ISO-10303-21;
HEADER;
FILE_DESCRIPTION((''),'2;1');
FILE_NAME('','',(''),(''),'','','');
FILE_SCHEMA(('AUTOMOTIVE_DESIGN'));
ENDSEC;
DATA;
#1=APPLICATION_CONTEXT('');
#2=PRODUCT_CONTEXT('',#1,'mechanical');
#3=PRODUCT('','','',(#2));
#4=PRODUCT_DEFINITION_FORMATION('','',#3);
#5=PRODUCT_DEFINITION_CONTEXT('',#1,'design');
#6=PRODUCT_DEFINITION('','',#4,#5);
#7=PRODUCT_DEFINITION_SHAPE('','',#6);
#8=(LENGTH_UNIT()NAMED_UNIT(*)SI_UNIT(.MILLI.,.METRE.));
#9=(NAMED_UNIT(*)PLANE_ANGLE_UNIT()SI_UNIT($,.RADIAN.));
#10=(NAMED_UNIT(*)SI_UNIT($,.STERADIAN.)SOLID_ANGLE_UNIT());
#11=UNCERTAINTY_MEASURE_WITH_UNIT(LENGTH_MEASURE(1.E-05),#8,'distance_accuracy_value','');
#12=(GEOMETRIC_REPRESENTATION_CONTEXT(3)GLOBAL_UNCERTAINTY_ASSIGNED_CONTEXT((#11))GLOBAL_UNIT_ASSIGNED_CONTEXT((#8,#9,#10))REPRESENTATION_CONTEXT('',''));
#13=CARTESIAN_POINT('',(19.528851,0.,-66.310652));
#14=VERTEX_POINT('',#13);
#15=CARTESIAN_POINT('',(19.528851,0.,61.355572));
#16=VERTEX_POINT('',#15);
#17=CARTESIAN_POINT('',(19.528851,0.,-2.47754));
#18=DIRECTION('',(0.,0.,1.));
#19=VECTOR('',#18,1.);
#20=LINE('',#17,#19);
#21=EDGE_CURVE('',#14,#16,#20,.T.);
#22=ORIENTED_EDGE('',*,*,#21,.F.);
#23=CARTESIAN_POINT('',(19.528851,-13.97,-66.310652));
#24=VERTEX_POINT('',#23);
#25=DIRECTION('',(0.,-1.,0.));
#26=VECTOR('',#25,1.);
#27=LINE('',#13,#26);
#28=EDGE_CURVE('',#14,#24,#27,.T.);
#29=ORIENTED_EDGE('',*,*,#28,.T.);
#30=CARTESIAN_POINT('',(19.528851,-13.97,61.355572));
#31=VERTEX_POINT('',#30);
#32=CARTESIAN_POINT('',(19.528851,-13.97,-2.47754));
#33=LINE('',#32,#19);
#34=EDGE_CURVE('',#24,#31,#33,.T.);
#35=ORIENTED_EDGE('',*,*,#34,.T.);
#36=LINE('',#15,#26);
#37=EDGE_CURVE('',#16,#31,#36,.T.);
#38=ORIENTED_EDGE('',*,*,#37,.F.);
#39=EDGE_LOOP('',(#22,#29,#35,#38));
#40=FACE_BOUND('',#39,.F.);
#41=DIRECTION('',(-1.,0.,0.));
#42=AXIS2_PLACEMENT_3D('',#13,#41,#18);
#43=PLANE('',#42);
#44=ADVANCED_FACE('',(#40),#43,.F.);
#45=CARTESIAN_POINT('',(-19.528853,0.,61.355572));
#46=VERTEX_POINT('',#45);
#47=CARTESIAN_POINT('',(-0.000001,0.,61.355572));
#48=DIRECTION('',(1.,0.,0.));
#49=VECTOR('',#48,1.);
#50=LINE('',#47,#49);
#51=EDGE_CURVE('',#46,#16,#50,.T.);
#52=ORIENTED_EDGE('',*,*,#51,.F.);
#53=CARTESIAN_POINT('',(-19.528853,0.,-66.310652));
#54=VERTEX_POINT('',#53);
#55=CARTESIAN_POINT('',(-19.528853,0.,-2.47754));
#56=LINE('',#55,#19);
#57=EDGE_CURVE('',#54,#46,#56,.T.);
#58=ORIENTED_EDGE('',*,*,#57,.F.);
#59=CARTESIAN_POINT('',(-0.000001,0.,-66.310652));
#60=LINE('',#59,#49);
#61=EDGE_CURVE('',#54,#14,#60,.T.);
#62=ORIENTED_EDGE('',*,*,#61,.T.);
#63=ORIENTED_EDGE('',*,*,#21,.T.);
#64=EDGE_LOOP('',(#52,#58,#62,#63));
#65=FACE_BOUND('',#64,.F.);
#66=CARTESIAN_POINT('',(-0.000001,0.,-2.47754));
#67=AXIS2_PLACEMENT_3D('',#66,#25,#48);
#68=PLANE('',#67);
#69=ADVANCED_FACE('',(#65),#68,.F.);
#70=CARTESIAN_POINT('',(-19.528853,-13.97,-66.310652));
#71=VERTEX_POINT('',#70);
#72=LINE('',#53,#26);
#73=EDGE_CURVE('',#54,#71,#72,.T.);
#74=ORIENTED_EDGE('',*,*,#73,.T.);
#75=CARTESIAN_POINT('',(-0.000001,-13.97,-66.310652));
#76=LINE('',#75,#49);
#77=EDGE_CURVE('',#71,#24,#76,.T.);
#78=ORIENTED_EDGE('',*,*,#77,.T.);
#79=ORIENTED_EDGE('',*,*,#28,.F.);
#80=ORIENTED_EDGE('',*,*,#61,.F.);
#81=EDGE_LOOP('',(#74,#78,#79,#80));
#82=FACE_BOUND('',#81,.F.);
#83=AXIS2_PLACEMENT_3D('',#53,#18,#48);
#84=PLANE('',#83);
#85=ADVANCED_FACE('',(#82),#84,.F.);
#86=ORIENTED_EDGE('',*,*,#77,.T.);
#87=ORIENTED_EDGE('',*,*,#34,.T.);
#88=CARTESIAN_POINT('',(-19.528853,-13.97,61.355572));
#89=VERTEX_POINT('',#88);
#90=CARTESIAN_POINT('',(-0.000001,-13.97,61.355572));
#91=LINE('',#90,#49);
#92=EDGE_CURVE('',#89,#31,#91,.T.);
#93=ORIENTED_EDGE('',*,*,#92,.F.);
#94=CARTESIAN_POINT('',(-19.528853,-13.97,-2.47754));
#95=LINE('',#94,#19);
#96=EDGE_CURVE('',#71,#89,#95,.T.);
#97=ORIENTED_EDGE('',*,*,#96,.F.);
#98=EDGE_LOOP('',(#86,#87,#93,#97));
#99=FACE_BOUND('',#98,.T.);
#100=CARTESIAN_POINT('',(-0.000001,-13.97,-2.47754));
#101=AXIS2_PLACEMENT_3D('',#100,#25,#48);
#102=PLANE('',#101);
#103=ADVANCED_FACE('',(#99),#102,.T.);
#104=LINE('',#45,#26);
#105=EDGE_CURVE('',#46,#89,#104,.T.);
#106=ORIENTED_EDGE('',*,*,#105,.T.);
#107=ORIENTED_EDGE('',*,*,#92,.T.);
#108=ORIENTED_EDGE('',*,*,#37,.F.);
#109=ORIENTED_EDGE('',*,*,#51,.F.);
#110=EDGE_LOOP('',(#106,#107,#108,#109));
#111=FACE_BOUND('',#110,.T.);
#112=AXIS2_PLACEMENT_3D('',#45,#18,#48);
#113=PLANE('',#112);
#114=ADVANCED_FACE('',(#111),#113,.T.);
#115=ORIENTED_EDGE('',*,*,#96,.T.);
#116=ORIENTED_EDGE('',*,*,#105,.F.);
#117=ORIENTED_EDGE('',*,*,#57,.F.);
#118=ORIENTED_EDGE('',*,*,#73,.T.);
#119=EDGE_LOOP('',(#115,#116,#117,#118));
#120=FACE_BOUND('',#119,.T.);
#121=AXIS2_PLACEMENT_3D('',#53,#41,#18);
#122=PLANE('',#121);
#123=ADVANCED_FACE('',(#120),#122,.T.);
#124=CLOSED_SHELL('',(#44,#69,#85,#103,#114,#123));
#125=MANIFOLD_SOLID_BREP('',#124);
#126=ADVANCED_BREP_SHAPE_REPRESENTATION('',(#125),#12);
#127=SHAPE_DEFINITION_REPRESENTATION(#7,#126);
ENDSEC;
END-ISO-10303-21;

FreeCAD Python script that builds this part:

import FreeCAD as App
import Part
import Sketcher
Q = App.Units.Quantity


def add_polygon(sketch, points):
    """Adds a closed chain of lines whose ends are joined by coincident constraints."""
    first, n = sketch.GeometryCount, len(points)
    for a, b in zip(points, points[1:] + points[:1]):
        sketch.addGeometry(Part.LineSegment(App.Vector(*a, 0), App.Vector(*b, 0)), False)
    for i in range(n):
        sketch.addConstraint(Sketcher.Constraint("Coincident", first + i, 2, first + (i + 1) % n, 1))

doc = App.newDocument("Part")
body = doc.addObject("PartDesign::Body", "Body")

sketch1 = body.newObject("Sketcher::SketchObject", "Sketch")
sketch1.AttachmentSupport = (doc.getObject("XZ_Plane"), [""])
sketch1.MapMode = "FlatFace"
add_polygon(sketch1, [(-20, 61), (-20, -66), (20, -66), (20, 61)])
sketch1.addConstraint([
    Sketcher.Constraint("Vertical", 0),
    Sketcher.Constraint("Horizontal", 1),
    Sketcher.Constraint("Vertical", 2),
    Sketcher.Constraint("Horizontal", 3),
    Sketcher.Constraint("DistanceX", 1, 1, 1, 2, Q("39.057704 mm")),
    Sketcher.Constraint("DistanceY", 0, 2, 0, 1, Q("127.666224 mm")),
    Sketcher.Constraint("DistanceX", -1, 1, 1, 2, Q("19.528851 mm")),
    Sketcher.Constraint("DistanceY", 0, 2, -1, 1, Q("66.310652 mm")),
])
pad1 = body.newObject("PartDesign::Pad", "Pad")
pad1.Profile = sketch1
pad1.Length = Q("0.55 in")

doc.recompute()
